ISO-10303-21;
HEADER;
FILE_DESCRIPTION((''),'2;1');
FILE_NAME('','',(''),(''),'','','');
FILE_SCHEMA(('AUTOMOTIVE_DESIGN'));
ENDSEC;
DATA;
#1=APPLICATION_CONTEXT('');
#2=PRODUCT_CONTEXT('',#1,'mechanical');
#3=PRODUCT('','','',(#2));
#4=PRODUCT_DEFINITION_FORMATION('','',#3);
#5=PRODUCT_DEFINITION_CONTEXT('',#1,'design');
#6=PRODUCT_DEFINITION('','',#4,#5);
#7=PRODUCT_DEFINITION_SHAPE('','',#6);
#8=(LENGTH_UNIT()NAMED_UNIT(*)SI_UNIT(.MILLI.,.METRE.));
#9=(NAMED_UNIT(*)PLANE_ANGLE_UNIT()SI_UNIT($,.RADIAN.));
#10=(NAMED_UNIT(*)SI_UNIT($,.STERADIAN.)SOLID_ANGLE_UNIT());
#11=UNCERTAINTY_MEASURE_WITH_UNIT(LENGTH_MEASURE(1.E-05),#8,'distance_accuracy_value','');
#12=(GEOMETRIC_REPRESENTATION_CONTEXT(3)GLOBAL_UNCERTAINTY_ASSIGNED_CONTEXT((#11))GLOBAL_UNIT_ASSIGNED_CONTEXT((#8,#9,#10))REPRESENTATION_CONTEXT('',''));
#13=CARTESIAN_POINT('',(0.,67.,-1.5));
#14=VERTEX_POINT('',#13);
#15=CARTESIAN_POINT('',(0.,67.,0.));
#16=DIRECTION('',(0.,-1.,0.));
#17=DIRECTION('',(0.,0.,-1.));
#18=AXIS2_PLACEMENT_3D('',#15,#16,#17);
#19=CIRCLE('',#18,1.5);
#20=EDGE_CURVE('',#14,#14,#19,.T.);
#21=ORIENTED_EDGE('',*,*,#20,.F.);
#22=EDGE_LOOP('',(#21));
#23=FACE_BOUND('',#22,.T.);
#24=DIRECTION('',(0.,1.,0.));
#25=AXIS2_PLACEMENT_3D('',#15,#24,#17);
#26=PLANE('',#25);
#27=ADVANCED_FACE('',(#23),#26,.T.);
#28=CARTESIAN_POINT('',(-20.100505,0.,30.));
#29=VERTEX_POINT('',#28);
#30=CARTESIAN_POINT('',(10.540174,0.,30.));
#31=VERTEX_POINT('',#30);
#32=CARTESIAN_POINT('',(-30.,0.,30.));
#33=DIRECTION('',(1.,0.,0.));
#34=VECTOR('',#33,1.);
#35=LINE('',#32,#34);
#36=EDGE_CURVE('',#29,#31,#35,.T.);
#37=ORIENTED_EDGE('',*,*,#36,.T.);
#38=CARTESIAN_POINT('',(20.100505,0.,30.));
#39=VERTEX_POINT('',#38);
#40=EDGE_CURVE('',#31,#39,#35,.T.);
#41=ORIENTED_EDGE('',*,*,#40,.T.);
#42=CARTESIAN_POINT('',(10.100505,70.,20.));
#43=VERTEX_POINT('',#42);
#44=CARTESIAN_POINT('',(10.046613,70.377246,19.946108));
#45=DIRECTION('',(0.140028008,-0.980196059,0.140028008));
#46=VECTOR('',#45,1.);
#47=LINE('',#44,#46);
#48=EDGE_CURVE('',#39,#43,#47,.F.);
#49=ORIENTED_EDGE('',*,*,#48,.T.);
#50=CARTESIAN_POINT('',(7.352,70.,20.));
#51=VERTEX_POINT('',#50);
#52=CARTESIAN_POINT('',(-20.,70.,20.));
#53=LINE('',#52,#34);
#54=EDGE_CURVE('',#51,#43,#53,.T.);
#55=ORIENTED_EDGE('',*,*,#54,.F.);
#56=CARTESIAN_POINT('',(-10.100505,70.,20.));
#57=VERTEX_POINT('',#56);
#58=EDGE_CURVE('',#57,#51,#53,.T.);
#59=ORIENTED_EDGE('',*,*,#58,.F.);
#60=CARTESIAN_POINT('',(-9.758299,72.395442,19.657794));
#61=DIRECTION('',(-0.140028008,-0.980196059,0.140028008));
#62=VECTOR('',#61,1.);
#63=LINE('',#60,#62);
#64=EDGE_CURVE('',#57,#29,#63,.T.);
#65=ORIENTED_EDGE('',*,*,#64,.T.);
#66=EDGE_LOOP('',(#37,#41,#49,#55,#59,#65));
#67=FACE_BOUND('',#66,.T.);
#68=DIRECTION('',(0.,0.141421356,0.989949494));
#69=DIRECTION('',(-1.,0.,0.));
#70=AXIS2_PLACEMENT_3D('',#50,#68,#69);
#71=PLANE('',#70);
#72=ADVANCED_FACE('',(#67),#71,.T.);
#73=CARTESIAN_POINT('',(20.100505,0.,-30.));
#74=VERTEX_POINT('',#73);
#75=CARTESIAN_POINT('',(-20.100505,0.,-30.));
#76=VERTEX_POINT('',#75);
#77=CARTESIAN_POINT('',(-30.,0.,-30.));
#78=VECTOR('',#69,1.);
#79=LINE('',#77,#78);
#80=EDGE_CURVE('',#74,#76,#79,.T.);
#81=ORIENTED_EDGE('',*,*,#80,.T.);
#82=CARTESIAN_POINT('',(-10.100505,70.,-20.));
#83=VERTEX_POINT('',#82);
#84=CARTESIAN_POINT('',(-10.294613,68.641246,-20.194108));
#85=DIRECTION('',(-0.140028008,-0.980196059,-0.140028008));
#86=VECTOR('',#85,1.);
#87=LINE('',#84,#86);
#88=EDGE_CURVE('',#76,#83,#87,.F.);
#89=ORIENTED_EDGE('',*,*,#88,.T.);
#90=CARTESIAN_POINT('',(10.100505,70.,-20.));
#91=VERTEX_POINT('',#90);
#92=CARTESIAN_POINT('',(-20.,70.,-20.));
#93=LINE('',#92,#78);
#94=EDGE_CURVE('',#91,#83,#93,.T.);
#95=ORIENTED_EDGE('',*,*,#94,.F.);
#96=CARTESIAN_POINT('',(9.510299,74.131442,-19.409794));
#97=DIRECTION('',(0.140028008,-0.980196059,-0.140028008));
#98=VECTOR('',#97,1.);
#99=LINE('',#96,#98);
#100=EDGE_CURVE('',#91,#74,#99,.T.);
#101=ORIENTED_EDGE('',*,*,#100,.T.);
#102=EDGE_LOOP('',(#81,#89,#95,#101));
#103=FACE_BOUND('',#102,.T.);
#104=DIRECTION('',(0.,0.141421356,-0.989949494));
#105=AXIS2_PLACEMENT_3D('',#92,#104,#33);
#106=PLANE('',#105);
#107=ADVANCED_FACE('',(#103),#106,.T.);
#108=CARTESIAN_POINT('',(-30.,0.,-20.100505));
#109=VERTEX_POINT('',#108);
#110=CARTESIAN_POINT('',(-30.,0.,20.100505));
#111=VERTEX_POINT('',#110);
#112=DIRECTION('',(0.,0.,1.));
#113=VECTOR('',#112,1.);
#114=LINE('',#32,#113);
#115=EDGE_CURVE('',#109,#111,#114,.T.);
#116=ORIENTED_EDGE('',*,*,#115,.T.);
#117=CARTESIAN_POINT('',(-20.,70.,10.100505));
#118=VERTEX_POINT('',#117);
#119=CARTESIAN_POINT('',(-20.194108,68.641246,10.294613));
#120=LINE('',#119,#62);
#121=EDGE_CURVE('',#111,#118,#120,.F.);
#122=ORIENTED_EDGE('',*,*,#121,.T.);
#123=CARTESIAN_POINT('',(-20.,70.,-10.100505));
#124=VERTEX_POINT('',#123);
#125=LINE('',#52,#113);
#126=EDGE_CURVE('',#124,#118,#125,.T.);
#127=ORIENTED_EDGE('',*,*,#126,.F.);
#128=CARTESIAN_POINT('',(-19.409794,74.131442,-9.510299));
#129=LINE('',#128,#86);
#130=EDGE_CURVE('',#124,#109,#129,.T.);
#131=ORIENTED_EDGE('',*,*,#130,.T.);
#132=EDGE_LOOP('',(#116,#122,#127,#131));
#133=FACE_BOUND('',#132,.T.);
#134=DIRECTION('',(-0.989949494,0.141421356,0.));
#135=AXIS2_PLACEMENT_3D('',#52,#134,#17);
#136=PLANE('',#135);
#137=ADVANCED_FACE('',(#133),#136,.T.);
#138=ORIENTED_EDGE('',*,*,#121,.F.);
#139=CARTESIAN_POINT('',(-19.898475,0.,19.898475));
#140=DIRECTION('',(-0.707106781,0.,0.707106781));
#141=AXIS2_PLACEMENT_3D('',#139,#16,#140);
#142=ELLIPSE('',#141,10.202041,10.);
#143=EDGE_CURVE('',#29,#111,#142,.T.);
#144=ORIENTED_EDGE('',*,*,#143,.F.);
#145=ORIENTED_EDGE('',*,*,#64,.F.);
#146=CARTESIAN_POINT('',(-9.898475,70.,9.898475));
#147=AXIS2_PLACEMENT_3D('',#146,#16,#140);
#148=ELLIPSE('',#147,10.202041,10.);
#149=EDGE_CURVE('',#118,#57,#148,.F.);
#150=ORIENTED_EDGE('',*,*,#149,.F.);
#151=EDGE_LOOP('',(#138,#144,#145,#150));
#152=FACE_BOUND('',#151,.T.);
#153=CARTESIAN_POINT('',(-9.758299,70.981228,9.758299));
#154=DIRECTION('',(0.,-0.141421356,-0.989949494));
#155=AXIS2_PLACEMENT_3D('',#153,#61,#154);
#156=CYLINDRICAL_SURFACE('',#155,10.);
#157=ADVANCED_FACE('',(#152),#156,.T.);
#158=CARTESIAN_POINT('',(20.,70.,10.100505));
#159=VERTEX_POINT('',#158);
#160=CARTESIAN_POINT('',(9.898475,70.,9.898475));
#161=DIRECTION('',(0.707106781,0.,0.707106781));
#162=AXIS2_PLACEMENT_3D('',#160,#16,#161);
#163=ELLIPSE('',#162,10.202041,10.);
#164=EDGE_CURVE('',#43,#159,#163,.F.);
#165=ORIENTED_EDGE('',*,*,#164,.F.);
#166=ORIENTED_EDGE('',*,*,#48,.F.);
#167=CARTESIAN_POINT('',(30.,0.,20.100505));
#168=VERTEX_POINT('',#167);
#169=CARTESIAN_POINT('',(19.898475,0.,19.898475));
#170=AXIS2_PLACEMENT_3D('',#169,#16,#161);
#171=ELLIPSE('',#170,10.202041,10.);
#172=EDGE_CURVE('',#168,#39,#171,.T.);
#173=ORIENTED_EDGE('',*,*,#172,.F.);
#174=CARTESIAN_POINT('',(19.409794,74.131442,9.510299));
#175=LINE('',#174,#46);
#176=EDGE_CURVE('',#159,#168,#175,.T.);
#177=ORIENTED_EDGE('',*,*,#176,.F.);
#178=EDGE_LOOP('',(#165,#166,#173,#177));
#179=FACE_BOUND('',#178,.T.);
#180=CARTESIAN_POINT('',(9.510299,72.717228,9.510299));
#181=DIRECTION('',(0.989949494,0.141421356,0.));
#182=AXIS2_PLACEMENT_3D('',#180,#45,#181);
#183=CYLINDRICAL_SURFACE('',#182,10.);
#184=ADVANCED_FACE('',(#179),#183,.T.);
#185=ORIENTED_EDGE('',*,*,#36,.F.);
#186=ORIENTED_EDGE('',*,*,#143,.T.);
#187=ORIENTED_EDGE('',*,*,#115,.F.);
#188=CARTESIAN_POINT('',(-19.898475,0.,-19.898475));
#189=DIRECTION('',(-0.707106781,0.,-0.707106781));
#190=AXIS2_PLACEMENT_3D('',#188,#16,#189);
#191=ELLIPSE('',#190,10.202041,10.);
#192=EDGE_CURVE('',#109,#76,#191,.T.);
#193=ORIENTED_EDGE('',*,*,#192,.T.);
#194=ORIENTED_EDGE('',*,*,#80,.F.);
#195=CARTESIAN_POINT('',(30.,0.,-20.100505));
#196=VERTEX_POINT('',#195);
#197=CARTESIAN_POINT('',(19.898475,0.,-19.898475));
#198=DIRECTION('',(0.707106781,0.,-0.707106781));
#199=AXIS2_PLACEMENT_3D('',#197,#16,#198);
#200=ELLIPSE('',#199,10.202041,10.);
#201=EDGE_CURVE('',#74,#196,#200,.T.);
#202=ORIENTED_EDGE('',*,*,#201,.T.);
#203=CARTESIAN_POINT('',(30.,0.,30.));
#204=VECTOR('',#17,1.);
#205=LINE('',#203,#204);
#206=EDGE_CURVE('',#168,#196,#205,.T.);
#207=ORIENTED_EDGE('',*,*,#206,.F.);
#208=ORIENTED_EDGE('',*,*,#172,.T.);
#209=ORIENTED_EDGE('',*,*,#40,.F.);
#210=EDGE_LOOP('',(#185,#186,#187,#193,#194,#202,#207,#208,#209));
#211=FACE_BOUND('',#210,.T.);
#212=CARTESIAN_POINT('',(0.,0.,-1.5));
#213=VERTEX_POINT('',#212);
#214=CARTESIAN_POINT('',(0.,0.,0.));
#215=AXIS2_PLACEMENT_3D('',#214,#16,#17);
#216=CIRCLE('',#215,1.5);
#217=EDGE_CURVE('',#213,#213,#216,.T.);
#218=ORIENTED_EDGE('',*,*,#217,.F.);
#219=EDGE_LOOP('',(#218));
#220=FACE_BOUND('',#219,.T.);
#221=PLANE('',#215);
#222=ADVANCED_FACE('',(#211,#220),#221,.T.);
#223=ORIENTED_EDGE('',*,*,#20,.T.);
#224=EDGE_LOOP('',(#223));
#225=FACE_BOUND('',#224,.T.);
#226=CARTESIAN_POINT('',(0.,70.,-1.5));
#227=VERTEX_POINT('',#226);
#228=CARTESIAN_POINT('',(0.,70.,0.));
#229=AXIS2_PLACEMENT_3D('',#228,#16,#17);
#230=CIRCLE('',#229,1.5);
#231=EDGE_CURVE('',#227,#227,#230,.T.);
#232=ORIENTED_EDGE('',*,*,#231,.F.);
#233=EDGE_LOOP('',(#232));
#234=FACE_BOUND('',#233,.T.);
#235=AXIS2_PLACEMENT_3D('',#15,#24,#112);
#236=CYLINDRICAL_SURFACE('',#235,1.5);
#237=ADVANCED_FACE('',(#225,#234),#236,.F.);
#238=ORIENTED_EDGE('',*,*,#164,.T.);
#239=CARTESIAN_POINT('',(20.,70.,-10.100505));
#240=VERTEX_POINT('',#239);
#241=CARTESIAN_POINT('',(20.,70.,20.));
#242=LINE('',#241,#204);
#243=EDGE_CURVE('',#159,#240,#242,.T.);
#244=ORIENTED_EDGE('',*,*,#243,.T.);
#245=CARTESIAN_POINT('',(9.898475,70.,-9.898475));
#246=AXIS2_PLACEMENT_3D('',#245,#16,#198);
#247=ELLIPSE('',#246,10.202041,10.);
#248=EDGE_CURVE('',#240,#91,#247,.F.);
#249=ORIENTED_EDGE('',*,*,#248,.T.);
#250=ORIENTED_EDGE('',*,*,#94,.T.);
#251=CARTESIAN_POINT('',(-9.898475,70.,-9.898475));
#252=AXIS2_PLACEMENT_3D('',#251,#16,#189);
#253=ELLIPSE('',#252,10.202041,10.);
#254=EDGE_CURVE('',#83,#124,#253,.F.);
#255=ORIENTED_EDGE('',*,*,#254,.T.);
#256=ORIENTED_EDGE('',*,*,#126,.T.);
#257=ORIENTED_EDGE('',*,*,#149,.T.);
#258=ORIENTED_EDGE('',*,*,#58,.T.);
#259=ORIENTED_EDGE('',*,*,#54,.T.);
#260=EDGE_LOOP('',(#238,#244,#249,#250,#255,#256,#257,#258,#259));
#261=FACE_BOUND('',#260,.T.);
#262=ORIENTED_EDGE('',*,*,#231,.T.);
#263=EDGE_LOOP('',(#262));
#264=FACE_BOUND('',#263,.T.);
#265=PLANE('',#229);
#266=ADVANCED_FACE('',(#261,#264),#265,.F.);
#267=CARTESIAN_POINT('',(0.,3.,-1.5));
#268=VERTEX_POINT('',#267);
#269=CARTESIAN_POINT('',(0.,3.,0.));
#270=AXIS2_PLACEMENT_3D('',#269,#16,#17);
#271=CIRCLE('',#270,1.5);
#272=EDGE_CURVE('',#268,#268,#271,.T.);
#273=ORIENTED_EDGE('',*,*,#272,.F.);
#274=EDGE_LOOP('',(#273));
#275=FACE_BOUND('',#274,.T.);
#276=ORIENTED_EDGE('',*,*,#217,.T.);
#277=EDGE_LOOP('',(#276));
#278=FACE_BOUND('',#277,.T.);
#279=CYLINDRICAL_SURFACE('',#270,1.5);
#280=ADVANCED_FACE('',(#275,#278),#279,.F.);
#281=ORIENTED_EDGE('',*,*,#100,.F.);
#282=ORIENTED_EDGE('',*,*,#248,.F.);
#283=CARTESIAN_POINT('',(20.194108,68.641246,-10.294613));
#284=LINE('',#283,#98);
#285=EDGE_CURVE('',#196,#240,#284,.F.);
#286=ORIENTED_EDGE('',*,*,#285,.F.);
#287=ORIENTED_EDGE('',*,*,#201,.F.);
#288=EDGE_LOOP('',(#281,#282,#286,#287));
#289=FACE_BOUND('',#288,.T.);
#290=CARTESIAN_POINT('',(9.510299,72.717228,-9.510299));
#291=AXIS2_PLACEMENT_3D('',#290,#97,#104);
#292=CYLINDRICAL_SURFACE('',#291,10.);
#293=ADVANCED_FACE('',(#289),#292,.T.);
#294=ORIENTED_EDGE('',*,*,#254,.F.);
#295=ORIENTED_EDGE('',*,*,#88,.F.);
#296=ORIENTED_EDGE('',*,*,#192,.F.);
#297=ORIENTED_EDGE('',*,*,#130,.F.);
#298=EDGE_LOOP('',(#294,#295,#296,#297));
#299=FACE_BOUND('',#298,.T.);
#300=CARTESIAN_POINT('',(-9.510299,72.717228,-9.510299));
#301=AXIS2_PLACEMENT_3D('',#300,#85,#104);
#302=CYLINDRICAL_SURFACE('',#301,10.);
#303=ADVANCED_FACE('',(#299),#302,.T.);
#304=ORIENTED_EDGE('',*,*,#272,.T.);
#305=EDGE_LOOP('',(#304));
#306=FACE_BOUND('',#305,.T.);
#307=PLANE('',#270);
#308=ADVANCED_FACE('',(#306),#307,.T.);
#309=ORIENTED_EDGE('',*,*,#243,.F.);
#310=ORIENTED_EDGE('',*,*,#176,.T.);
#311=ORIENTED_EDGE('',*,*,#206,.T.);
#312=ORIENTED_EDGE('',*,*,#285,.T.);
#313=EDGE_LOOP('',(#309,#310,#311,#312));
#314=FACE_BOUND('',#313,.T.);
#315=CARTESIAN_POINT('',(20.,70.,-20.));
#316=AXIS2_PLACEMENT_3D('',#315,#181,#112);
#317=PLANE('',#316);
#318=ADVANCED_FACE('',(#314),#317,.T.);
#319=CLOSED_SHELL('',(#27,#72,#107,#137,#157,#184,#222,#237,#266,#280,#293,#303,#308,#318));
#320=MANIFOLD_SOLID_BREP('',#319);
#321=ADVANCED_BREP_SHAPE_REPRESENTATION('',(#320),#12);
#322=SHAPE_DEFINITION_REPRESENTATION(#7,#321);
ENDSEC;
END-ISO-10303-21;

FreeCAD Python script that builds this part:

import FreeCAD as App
import Part
import Sketcher


def edges_at(feature, points):
    """Names of the edges that pass closest to the given points."""
    edges = feature.Shape.Edges
    near = lambda p: min(range(len(edges)), key=lambda i: edges[i].distToShape(Part.Vertex(*p))[0])
    return sorted({f"Edge{near(p) + 1}" for p in points})


def add_polygon(sketch, points):
    """Adds a closed chain of lines whose ends are joined by coincident constraints."""
    first, n = sketch.GeometryCount, len(points)
    for a, b in zip(points, points[1:] + points[:1]):
        sketch.addGeometry(Part.LineSegment(App.Vector(*a, 0), App.Vector(*b, 0)), False)
    for i in range(n):
        sketch.addConstraint(Sketcher.Constraint("Coincident", first + i, 2, first + (i + 1) % n, 1))

doc = App.newDocument("Part")
body = doc.addObject("PartDesign::Body", "Body")

sketch1 = doc.addObject("Sketcher::SketchObject", "Sketch")
body.addObject(sketch1)
sketch1.AttachmentSupport = (doc.XZ_Plane, [""])
sketch1.MapMode = "FlatFace"
sketch1.AttachmentOffset = App.Placement(App.Vector(0, 0, -70), App.Rotation())
add_polygon(sketch1, [(-20, 20), (20, 20), (20, -20), (-20, -20)])
sketch1.addConstraint([
    Sketcher.Constraint("Horizontal", 0),
    Sketcher.Constraint("Vertical", 1),
    Sketcher.Constraint("Horizontal", 2),
    Sketcher.Constraint("Vertical", 3),
    Sketcher.Constraint("Symmetric", 0, 2, 2, 2, -1, 1),
    Sketcher.Constraint("Equal", 2, 1),
    Sketcher.Constraint("DistanceX", 0, 1, 0, 2, 40.0),
])

sketch2 = doc.addObject("Sketcher::SketchObject", "Sketch001")
body.addObject(sketch2)
sketch2.AttachmentSupport = (doc.XZ_Plane, [""])
sketch2.MapMode = "FlatFace"
add_polygon(sketch2, [(-30, 30), (30, 30), (30, -30), (-30, -30)])
sketch2.addConstraint([
    Sketcher.Constraint("Horizontal", 0),
    Sketcher.Constraint("Vertical", 1),
    Sketcher.Constraint("Horizontal", 2),
    Sketcher.Constraint("Vertical", 3),
    Sketcher.Constraint("Symmetric", 0, 2, 2, 2, -1, 1),
    Sketcher.Constraint("Equal", 2, 1),
    Sketcher.Constraint("DistanceX", 0, 1, 0, 2, 60.0),
])

additiveloft = doc.addObject("PartDesign::AdditiveLoft", "AdditiveLoft")
body.addObject(additiveloft)
additiveloft.Profile = sketch1
additiveloft.Sections = [sketch2]

sketch3 = doc.addObject("Sketcher::SketchObject", "Sketch002")
body.addObject(sketch3)
sketch3.AttachmentSupport = (doc.XZ_Plane, [""])
sketch3.MapMode = "FlatFace"
sketch3.addGeometry(Part.Circle(App.Vector(0, 0, 0), App.Vector(0, 0, 1), 1.5), False)
sketch3.addConstraint([
    Sketcher.Constraint("Coincident", 0, 3, -1, 1),
    Sketcher.Constraint("Diameter", 0, 3.0),
])
pocket1 = doc.addObject("PartDesign::Pocket", "Pocket")
body.addObject(pocket1)
pocket1.Profile = sketch3
pocket1.Length = 3
doc.recompute()

datumplane = doc.addObject("PartDesign::Plane", "DatumPlane")
body.addObject(datumplane)
datumplane.AttachmentSupport = (doc.XZ_Plane, [""])
datumplane.MapMode = "FlatFace"
datumplane.AttachmentOffset = App.Placement(App.Vector(0, 0, -35), App.Rotation())
mirrored = doc.addObject("PartDesign::Mirrored", "Mirrored")
body.addObject(mirrored)
mirrored.Originals = [pocket1]
mirrored.MirrorPlane = (datumplane, [""])
body.Tip = mirrored
doc.recompute()

fillet = doc.addObject("PartDesign::Fillet", "Fillet")
body.addObject(fillet)
fillet.Base = (mirrored, edges_at(mirrored, [
    (-25, 35, -25),
    (25, 35, -25),
    (25, 35, 25),
    (-25, 35, 25),
]))
fillet.Radius = 10

doc.recompute()
